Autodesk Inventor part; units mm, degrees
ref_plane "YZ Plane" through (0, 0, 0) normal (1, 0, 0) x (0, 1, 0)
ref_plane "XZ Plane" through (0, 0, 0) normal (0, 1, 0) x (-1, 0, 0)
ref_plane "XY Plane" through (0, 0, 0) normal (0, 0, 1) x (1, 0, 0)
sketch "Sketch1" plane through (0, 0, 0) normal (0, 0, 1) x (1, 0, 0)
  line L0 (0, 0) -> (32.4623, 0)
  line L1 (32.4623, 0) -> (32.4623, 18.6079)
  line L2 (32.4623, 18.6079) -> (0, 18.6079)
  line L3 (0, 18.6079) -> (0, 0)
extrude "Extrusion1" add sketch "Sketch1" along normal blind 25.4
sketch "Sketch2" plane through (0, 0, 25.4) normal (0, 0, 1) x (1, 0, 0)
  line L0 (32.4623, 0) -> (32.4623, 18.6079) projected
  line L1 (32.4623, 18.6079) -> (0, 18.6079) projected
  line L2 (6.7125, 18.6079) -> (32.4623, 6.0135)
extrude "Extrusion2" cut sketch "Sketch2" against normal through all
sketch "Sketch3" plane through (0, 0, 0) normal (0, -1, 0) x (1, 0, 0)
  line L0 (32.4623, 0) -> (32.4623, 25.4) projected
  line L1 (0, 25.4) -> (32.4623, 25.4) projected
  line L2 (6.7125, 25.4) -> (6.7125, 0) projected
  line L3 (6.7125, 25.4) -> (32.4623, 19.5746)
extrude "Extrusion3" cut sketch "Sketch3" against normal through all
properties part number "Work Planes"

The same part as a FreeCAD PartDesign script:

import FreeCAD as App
import Part
import Sketcher
Q = App.Units.Quantity

doc = App.newDocument("Part")
body = doc.addObject("PartDesign::Body", "Body")

# Sketch on XY plane
sketch1 = body.newObject("Sketcher::SketchObject", "Sketch")
sketch1.AttachmentSupport = (doc.getObject("XY_Plane"), [""])
sketch1.MapMode = "FlatFace"
sketch1.addGeometry([
    Part.LineSegment(App.Vector(0, 19, 0), App.Vector(0, 0, 0)),
    Part.LineSegment(App.Vector(0, 0, 0), App.Vector(32, 0, 0)),
    Part.LineSegment(App.Vector(32, 0, 0), App.Vector(32, 19, 0)),
    Part.LineSegment(App.Vector(32, 19, 0), App.Vector(0, 19, 0)),
], False)
sketch1.addConstraint([
    Sketcher.Constraint("Coincident", 0, 2, 1, 1),
    Sketcher.Constraint("Coincident", 1, 2, 2, 1),
    Sketcher.Constraint("Coincident", 2, 2, 3, 1),
    Sketcher.Constraint("Coincident", 3, 2, 0, 1),
    Sketcher.Constraint("Vertical", 0),
    Sketcher.Constraint("Horizontal", 1),
    Sketcher.Constraint("Vertical", 2),
    Sketcher.Constraint("Horizontal", 3),
    Sketcher.Constraint("Coincident", 0, 2, -1, 1),
    Sketcher.Constraint("DistanceY", 0, 2, 0, 1, Q("18.608 mm")),
    Sketcher.Constraint("DistanceX", 1, 1, 1, 2, Q("32.4623 mm")),
])
pad1 = body.newObject("PartDesign::Pad", "Pad")
pad1.Profile = sketch1
pad1.Length = 25.4

# Sketch on XY plane
sketch2 = body.newObject("Sketcher::SketchObject", "Sketch001")
sketch2.AttachmentSupport = (doc.getObject("XY_Plane"), [""])
sketch2.MapMode = "FlatFace"
sketch2.AttachmentOffset = App.Placement(App.Vector(0, 0, 25.4), App.Rotation())
sketch2.addGeometry([
    Part.LineSegment(App.Vector(7, 19, 0), App.Vector(32, 6, 0)),
    Part.LineSegment(App.Vector(32, 6, 0), App.Vector(32, 19, 0)),
    Part.LineSegment(App.Vector(32, 19, 0), App.Vector(7, 19, 0)),
], False)
sketch2.addConstraint([
    Sketcher.Constraint("Coincident", 0, 2, 1, 1),
    Sketcher.Constraint("Coincident", 1, 2, 2, 1),
    Sketcher.Constraint("Coincident", 2, 2, 0, 1),
    Sketcher.Constraint("Vertical", 1),
    Sketcher.Constraint("Horizontal", 2),
    Sketcher.Constraint("DistanceX", 2, 2, 2, 1, Q("25.7498 mm")),
    Sketcher.Constraint("DistanceY", 1, 1, 1, 2, Q("12.5944 mm")),
    Sketcher.Constraint("DistanceY", -1, 1, 1, 2, Q("18.608 mm")),
    Sketcher.Constraint("DistanceX", -1, 1, 0, 2, Q("32.4623 mm")),
])
pocket1 = body.newObject("PartDesign::Pocket", "Pocket")
pocket1.Profile = sketch2
pocket1.Type = "ThroughAll"

# Sketch on XZ plane
sketch3 = body.newObject("Sketcher::SketchObject", "Sketch002")
sketch3.AttachmentSupport = (doc.getObject("XZ_Plane"), [""])
sketch3.MapMode = "FlatFace"
sketch3.addGeometry([
    Part.LineSegment(App.Vector(7, 25, 0), App.Vector(32, 20, 0)),
    Part.LineSegment(App.Vector(32, 20, 0), App.Vector(32, 25, 0)),
    Part.LineSegment(App.Vector(32, 25, 0), App.Vector(7, 25, 0)),
], False)
sketch3.addConstraint([
    Sketcher.Constraint("Coincident", 0, 2, 1, 1),
    Sketcher.Constraint("Coincident", 1, 2, 2, 1),
    Sketcher.Constraint("Coincident", 2, 2, 0, 1),
    Sketcher.Constraint("Vertical", 1),
    Sketcher.Constraint("Horizontal", 2),
    Sketcher.Constraint("DistanceY", -1, 1, 1, 2, Q("25.4 mm")),
    Sketcher.Constraint("DistanceX", 2, 2, 2, 1, Q("25.7498 mm")),
    Sketcher.Constraint("DistanceY", 1, 1, 1, 2, Q("5.8254 mm")),
    Sketcher.Constraint("DistanceX", -1, 1, 0, 2, Q("32.4623 mm")),
])
pocket2 = body.newObject("PartDesign::Pocket", "Pocket001")
pocket2.Profile = sketch3
pocket2.Type = "ThroughAll"

doc.recompute()
